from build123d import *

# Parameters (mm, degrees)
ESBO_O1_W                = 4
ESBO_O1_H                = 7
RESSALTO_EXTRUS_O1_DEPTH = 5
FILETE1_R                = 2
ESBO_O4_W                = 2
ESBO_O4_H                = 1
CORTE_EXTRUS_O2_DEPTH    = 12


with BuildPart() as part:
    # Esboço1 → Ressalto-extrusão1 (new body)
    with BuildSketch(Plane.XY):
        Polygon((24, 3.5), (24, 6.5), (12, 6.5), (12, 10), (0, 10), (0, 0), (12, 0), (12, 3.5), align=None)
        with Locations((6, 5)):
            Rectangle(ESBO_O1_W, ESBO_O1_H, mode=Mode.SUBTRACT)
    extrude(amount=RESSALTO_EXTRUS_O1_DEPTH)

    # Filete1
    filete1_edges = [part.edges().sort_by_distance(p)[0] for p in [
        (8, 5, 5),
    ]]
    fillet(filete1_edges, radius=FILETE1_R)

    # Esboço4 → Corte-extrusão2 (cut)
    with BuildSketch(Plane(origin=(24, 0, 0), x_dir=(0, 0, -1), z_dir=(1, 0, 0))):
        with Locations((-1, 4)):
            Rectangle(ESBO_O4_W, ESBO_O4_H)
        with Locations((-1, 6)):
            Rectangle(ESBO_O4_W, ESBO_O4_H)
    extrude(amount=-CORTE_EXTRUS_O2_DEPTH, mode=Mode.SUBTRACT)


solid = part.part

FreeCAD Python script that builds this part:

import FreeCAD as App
import Part
import Sketcher

V = App.Vector
Q = App.Units.Quantity


def edges_at(feature, points):
    """Names of the edges that pass closest to the given points."""
    edges = feature.Shape.Edges
    near = lambda p: min(range(len(edges)), key=lambda i: edges[i].distToShape(Part.Vertex(*p))[0])
    return sorted({f"Edge{near(p) + 1}" for p in points})

doc = App.newDocument("Part")
body = doc.addObject("PartDesign::Body", "Body")

sketch1 = doc.addObject("Sketcher::SketchObject", "Sketch")
body.addObject(sketch1)
sketch1.AttachmentSupport = (doc.XY_Plane, [""])
sketch1.MapMode = "FlatFace"
sketch1.addGeometry([
    Part.LineSegment(V(24, 3.5, 0), V(24, 6.5, 0)),
    Part.LineSegment(V(24, 6.5, 0), V(12, 6.5, 0)),
    Part.LineSegment(V(12, 6.5, 0), V(12, 10, 0)),
    Part.LineSegment(V(12, 10, 0), V(0, 10, 0)),
    Part.LineSegment(V(0, 10, 0), V(0, 0, 0)),
    Part.LineSegment(V(0, 0, 0), V(12, 0, 0)),
    Part.LineSegment(V(12, 0, 0), V(12, 3.5, 0)),
    Part.LineSegment(V(12, 3.5, 0), V(24, 3.5, 0)),
    Part.LineSegment(V(8, 1.5, 0), V(4, 1.5, 0)),
    Part.LineSegment(V(4, 1.5, 0), V(4, 8.5, 0)),
    Part.LineSegment(V(4, 8.5, 0), V(8, 8.5, 0)),
    Part.LineSegment(V(8, 8.5, 0), V(8, 1.5, 0)),
], False)
sketch1.addConstraint([
    Sketcher.Constraint("Coincident", 0, 2, 1, 1),
    Sketcher.Constraint("Coincident", 1, 2, 2, 1),
    Sketcher.Constraint("Coincident", 2, 2, 3, 1),
    Sketcher.Constraint("Coincident", 3, 2, 4, 1),
    Sketcher.Constraint("Coincident", 4, 2, 5, 1),
    Sketcher.Constraint("Coincident", 5, 2, 6, 1),
    Sketcher.Constraint("Coincident", 6, 2, 7, 1),
    Sketcher.Constraint("Coincident", 7, 2, 0, 1),
    Sketcher.Constraint("Coincident", 8, 2, 9, 1),
    Sketcher.Constraint("Coincident", 9, 2, 10, 1),
    Sketcher.Constraint("Coincident", 10, 2, 11, 1),
    Sketcher.Constraint("Coincident", 11, 2, 8, 1),
    Sketcher.Constraint("Vertical", 0),
    Sketcher.Constraint("Horizontal", 1),
    Sketcher.Constraint("Vertical", 2),
    Sketcher.Constraint("Horizontal", 3),
    Sketcher.Constraint("Vertical", 4),
    Sketcher.Constraint("Horizontal", 5),
    Sketcher.Constraint("Vertical", 6),
    Sketcher.Constraint("Horizontal", 7),
    Sketcher.Constraint("Horizontal", 8),
    Sketcher.Constraint("Vertical", 9),
    Sketcher.Constraint("Horizontal", 10),
    Sketcher.Constraint("Vertical", 11),
    Sketcher.Constraint("Coincident", 4, 2, -1, 1),
    Sketcher.Constraint("Vertical", 2, 2, 5, 2),
    Sketcher.Constraint("Equal", 1, 3),
    Sketcher.Constraint("Equal", 2, 6),
    Sketcher.Constraint("DistanceX", 1, 2, 1, 1, Q("12 mm")),
    Sketcher.Constraint("DistanceX", 8, 2, 8, 1, Q("4 mm")),
    Sketcher.Constraint("DistanceY", 0, 1, 0, 2, Q("3 mm")),
    Sketcher.Constraint("DistanceY", 4, 2, 4, 1, Q("10 mm")),
    Sketcher.Constraint("DistanceY", 9, 1, 9, 2, Q("7 mm")),
    Sketcher.Constraint("DistanceX", -1, 1, 8, 2, Q("4 mm")),
    Sketcher.Constraint("DistanceY", 8, 2, 6, 2, Q("2 mm")),
])
pad1 = doc.addObject("PartDesign::Pad", "Pad")
body.addObject(pad1)
pad1.Profile = sketch1
pad1.Length = 5
doc.recompute()

fillet = doc.addObject("PartDesign::Fillet", "Fillet")
body.addObject(fillet)
fillet.Base = (pad1, edges_at(pad1, [(8, 5, 5)]))
fillet.Radius = 2

sketch2 = doc.addObject("Sketcher::SketchObject", "Sketch001")
body.addObject(sketch2)
sketch2.AttachmentSupport = (doc.YZ_Plane, [""])
sketch2.MapMode = "FlatFace"
sketch2.AttachmentOffset = App.Placement(V(0, 0, 24), App.Rotation())
sketch2.addGeometry([
    Part.LineSegment(V(4.5, 2, 0), V(3.5, 2, 0)),
    Part.LineSegment(V(3.5, 2, 0), V(3.5, 0, 0)),
    Part.LineSegment(V(3.5, 0, 0), V(4.5, 0, 0)),
    Part.LineSegment(V(4.5, 0, 0), V(4.5, 2, 0)),
    Part.LineSegment(V(6.5, 2, 0), V(5.5, 2, 0)),
    Part.LineSegment(V(5.5, 2, 0), V(5.5, 0, 0)),
    Part.LineSegment(V(5.5, 0, 0), V(6.5, 0, 0)),
    Part.LineSegment(V(6.5, 0, 0), V(6.5, 2, 0)),
], False)
sketch2.addConstraint([
    Sketcher.Constraint("Coincident", 0, 2, 1, 1),
    Sketcher.Constraint("Coincident", 1, 2, 2, 1),
    Sketcher.Constraint("Coincident", 2, 2, 3, 1),
    Sketcher.Constraint("Coincident", 3, 2, 0, 1),
    Sketcher.Constraint("Coincident", 4, 2, 5, 1),
    Sketcher.Constraint("Coincident", 5, 2, 6, 1),
    Sketcher.Constraint("Coincident", 6, 2, 7, 1),
    Sketcher.Constraint("Coincident", 7, 2, 4, 1),
    Sketcher.Constraint("Horizontal", 0),
    Sketcher.Constraint("Vertical", 1),
    Sketcher.Constraint("Horizontal", 2),
    Sketcher.Constraint("Vertical", 3),
    Sketcher.Constraint("Horizontal", 4),
    Sketcher.Constraint("Vertical", 5),
    Sketcher.Constraint("Horizontal", 6),
    Sketcher.Constraint("Vertical", 7),
    Sketcher.Constraint("PointOnObject", 1, 2, -1),
    Sketcher.Constraint("PointOnObject", 5, 2, -1),
    Sketcher.Constraint("Horizontal", 3, 2, 4, 2),
    Sketcher.Constraint("Equal", 2, 4),
    Sketcher.Constraint("DistanceX", 0, 2, 0, 1, Q("1 mm")),
    Sketcher.Constraint("DistanceY", 1, 2, 1, 1, Q("2 mm")),
    Sketcher.Constraint("DistanceX", 3, 2, 4, 2, Q("1 mm")),
    Sketcher.Constraint("DistanceX", -1, 1, 0, 2, Q("3.5 mm")),
])
pocket1 = doc.addObject("PartDesign::Pocket", "Pocket")
body.addObject(pocket1)
pocket1.Profile = sketch2
pocket1.Length = 12

doc.recompute()
